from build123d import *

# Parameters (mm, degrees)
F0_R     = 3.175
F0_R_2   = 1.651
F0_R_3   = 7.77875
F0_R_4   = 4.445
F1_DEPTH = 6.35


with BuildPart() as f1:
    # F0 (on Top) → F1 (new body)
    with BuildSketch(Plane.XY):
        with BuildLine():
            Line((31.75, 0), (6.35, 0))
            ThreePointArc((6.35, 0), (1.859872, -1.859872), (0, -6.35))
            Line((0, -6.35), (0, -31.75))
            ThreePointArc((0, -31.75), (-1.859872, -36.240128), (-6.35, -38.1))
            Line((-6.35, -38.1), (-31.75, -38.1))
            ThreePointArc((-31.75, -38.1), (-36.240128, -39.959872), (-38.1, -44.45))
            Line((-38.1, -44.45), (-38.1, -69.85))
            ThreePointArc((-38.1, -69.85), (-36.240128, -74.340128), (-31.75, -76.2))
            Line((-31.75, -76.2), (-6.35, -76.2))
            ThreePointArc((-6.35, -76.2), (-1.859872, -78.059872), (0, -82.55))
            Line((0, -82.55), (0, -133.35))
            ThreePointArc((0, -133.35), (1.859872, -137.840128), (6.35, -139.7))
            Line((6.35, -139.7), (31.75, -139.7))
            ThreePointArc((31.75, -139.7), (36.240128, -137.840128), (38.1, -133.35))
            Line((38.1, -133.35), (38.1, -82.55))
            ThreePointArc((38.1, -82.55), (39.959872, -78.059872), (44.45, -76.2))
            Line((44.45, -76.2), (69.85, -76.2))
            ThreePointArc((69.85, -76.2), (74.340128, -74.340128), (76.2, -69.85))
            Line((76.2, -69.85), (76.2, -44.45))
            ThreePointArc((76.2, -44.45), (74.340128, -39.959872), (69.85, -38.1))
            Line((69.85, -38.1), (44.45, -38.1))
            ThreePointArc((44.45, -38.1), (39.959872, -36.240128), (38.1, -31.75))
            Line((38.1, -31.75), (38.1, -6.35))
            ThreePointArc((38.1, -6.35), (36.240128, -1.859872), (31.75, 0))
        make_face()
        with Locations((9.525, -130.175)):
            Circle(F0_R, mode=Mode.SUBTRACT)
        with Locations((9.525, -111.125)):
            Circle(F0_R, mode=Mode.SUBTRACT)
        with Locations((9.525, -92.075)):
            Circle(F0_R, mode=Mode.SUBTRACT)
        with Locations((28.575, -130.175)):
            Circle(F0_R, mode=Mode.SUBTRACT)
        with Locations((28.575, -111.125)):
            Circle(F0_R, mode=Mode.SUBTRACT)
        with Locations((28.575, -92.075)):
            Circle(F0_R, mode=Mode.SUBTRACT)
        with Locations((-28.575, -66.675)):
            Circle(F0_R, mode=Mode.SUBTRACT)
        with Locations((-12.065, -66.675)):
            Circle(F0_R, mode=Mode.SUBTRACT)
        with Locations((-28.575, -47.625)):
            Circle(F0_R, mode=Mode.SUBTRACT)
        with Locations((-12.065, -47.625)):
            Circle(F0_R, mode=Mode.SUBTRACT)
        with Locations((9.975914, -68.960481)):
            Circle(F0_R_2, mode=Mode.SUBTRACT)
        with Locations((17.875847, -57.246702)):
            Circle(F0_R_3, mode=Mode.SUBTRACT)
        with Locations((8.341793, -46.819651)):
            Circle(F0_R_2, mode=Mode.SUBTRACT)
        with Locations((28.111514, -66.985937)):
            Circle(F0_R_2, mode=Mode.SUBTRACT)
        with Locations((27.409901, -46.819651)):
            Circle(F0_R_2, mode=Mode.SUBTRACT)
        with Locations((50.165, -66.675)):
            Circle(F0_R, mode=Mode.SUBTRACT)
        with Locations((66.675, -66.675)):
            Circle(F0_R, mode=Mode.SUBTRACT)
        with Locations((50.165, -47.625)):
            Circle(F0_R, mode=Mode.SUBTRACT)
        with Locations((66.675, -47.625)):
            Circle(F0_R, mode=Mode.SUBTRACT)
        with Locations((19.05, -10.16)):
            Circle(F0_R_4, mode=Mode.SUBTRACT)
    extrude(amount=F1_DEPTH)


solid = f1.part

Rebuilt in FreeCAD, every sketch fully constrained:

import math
import FreeCAD as App
import Part
import Sketcher
Q = App.Units.Quantity

doc = App.newDocument("Part")
body = doc.addObject("PartDesign::Body", "Body")

sketch1 = body.newObject("Sketcher::SketchObject", "Sketch")
sketch1.AttachmentSupport = (doc.getObject("XY_Plane"), [""])
sketch1.MapMode = "FlatFace"
sketch1.addGeometry(Part.LineSegment(App.Vector(31.75, 0, 0), App.Vector(6.35, 0, 0)), False)
sketch1.addGeometry(Part.ArcOfCircle(Part.Circle(App.Vector(6.35, -6.35, 0), App.Vector(0, 0, 1), 6.35), math.radians(90.000002), math.radians(179.999998)), False)
sketch1.addGeometry(Part.LineSegment(App.Vector(0, -6.35, 0), App.Vector(0, -31.75, 0)), False)
sketch1.addGeometry(Part.ArcOfCircle(Part.Circle(App.Vector(-6.35, -31.75, 0), App.Vector(0, 0, 1), 6.35), math.radians(-89.999998), math.radians(-0.000002)), False)
sketch1.addGeometry(Part.LineSegment(App.Vector(-6.35, -38.1, 0), App.Vector(-31.75, -38.1, 0)), False)
sketch1.addGeometry(Part.ArcOfCircle(Part.Circle(App.Vector(-31.75, -44.45, 0), App.Vector(0, 0, 1), 6.35), math.radians(90.000002), math.radians(179.999998)), False)
sketch1.addGeometry(Part.LineSegment(App.Vector(-38.1, -44.45, 0), App.Vector(-38.1, -69.85, 0)), False)
sketch1.addGeometry(Part.ArcOfCircle(Part.Circle(App.Vector(-31.75, -69.85, 0), App.Vector(0, 0, 1), 6.35), math.radians(-179.999998), math.radians(-90.000002)), False)
sketch1.addGeometry(Part.LineSegment(App.Vector(-31.75, -76.2, 0), App.Vector(-6.35, -76.2, 0)), False)
sketch1.addGeometry(Part.ArcOfCircle(Part.Circle(App.Vector(-6.35, -82.55, 0), App.Vector(0, 0, 1), 6.35), math.radians(0.000002), math.radians(89.999998)), False)
sketch1.addGeometry(Part.LineSegment(App.Vector(0, -82.55, 0), App.Vector(0, -133.35, 0)), False)
sketch1.addGeometry(Part.ArcOfCircle(Part.Circle(App.Vector(6.35, -133.35, 0), App.Vector(0, 0, 1), 6.35), math.radians(-179.999998), math.radians(-90.000002)), False)
sketch1.addGeometry(Part.LineSegment(App.Vector(6.35, -139.7, 0), App.Vector(31.75, -139.7, 0)), False)
sketch1.addGeometry(Part.ArcOfCircle(Part.Circle(App.Vector(31.75, -133.35, 0), App.Vector(0, 0, 1), 6.35), math.radians(-89.999998), math.radians(-0.000002)), False)
sketch1.addGeometry(Part.LineSegment(App.Vector(38.1, -133.35, 0), App.Vector(38.1, -82.55, 0)), False)
sketch1.addGeometry(Part.ArcOfCircle(Part.Circle(App.Vector(44.45, -82.55, 0), App.Vector(0, 0, 1), 6.35), math.radians(90.000002), math.radians(179.999998)), False)
sketch1.addGeometry(Part.LineSegment(App.Vector(44.45, -76.2, 0), App.Vector(69.85, -76.2, 0)), False)
sketch1.addGeometry(Part.ArcOfCircle(Part.Circle(App.Vector(69.85, -69.85, 0), App.Vector(0, 0, 1), 6.35), math.radians(-89.999998), math.radians(-0.000002)), False)
sketch1.addGeometry(Part.LineSegment(App.Vector(76.2, -69.85, 0), App.Vector(76.2, -44.45, 0)), False)
sketch1.addGeometry(Part.ArcOfCircle(Part.Circle(App.Vector(69.85, -44.45, 0), App.Vector(0, 0, 1), 6.35), math.radians(0.000002), math.radians(89.999998)), False)
sketch1.addGeometry(Part.LineSegment(App.Vector(69.85, -38.1, 0), App.Vector(44.45, -38.1, 0)), False)
sketch1.addGeometry(Part.ArcOfCircle(Part.Circle(App.Vector(44.45, -31.75, 0), App.Vector(0, 0, 1), 6.35), math.radians(-179.999998), math.radians(-90.000002)), False)
sketch1.addGeometry(Part.LineSegment(App.Vector(38.1, -31.75, 0), App.Vector(38.1, -6.35, 0)), False)
sketch1.addGeometry(Part.ArcOfCircle(Part.Circle(App.Vector(31.75, -6.35, 0), App.Vector(0, 0, 1), 6.35), math.radians(0.000002), math.radians(89.999998)), False)
sketch1.addGeometry(Part.Circle(App.Vector(9.525, -130.175, 0), App.Vector(0, 0, 1), 3.175), False)
sketch1.addGeometry(Part.Circle(App.Vector(9.525, -111.125, 0), App.Vector(0, 0, 1), 3.175), False)
sketch1.addGeometry(Part.Circle(App.Vector(9.525, -92.075, 0), App.Vector(0, 0, 1), 3.175), False)
sketch1.addGeometry(Part.Circle(App.Vector(28.575, -130.175, 0), App.Vector(0, 0, 1), 3.175), False)
sketch1.addGeometry(Part.Circle(App.Vector(28.575, -111.125, 0), App.Vector(0, 0, 1), 3.175), False)
sketch1.addGeometry(Part.Circle(App.Vector(28.575, -92.075, 0), App.Vector(0, 0, 1), 3.175), False)
sketch1.addGeometry(Part.Circle(App.Vector(-28.575, -66.675, 0), App.Vector(0, 0, 1), 3.175), False)
sketch1.addGeometry(Part.Circle(App.Vector(-12.065, -66.675, 0), App.Vector(0, 0, 1), 3.175), False)
sketch1.addGeometry(Part.Circle(App.Vector(-28.575, -47.625, 0), App.Vector(0, 0, 1), 3.175), False)
sketch1.addGeometry(Part.Circle(App.Vector(-12.065, -47.625, 0), App.Vector(0, 0, 1), 3.175), False)
sketch1.addGeometry(Part.Circle(App.Vector(9.975914, -68.960481, 0), App.Vector(0, 0, 1), 1.651), False)
sketch1.addGeometry(Part.Circle(App.Vector(17.875847, -57.246702, 0), App.Vector(0, 0, 1), 7.77875), False)
sketch1.addGeometry(Part.Circle(App.Vector(8.341793, -46.819651, 0), App.Vector(0, 0, 1), 1.651), False)
sketch1.addGeometry(Part.Circle(App.Vector(19.05, -10.16, 0), App.Vector(0, 0, 1), 4.445), False)
sketch1.addGeometry(Part.Circle(App.Vector(28.111514, -66.985937, 0), App.Vector(0, 0, 1), 1.651), False)
sketch1.addGeometry(Part.Circle(App.Vector(27.409901, -46.819651, 0), App.Vector(0, 0, 1), 1.651), False)
sketch1.addGeometry(Part.Circle(App.Vector(50.165, -66.675, 0), App.Vector(0, 0, 1), 3.175), False)
sketch1.addGeometry(Part.Circle(App.Vector(66.675, -66.675, 0), App.Vector(0, 0, 1), 3.175), False)
sketch1.addGeometry(Part.Circle(App.Vector(50.165, -47.625, 0), App.Vector(0, 0, 1), 3.175), False)
sketch1.addGeometry(Part.Circle(App.Vector(66.675, -47.625, 0), App.Vector(0, 0, 1), 3.175), False)
sketch1.addConstraint(Sketcher.Constraint("Tangent", 0, 2, 1, 1))
sketch1.addConstraint(Sketcher.Constraint("Tangent", 1, 2, 2, 1))
sketch1.addConstraint(Sketcher.Constraint("Tangent", 2, 2, 3, 2))
sketch1.addConstraint(Sketcher.Constraint("Tangent", 3, 1, 4, 1))
sketch1.addConstraint(Sketcher.Constraint("Tangent", 4, 2, 5, 1))
sketch1.addConstraint(Sketcher.Constraint("Tangent", 5, 2, 6, 1))
sketch1.addConstraint(Sketcher.Constraint("Tangent", 6, 2, 7, 1))
sketch1.addConstraint(Sketcher.Constraint("Tangent", 7, 2, 8, 1))
sketch1.addConstraint(Sketcher.Constraint("Tangent", 8, 2, 9, 2))
sketch1.addConstraint(Sketcher.Constraint("Tangent", 9, 1, 10, 1))
sketch1.addConstraint(Sketcher.Constraint("Tangent", 10, 2, 11, 1))
sketch1.addConstraint(Sketcher.Constraint("Tangent", 11, 2, 12, 1))
sketch1.addConstraint(Sketcher.Constraint("Tangent", 12, 2, 13, 1))
sketch1.addConstraint(Sketcher.Constraint("Tangent", 13, 2, 14, 1))
sketch1.addConstraint(Sketcher.Constraint("Tangent", 14, 2, 15, 2))
sketch1.addConstraint(Sketcher.Constraint("Tangent", 15, 1, 16, 1))
sketch1.addConstraint(Sketcher.Constraint("Tangent", 16, 2, 17, 1))
sketch1.addConstraint(Sketcher.Constraint("Tangent", 17, 2, 18, 1))
sketch1.addConstraint(Sketcher.Constraint("Tangent", 18, 2, 19, 1))
sketch1.addConstraint(Sketcher.Constraint("Tangent", 19, 2, 20, 1))
sketch1.addConstraint(Sketcher.Constraint("Tangent", 20, 2, 21, 2))
sketch1.addConstraint(Sketcher.Constraint("Tangent", 21, 1, 22, 1))
sketch1.addConstraint(Sketcher.Constraint("Tangent", 22, 2, 23, 1))
sketch1.addConstraint(Sketcher.Constraint("Tangent", 23, 2, 0, 1))
sketch1.addConstraint(Sketcher.Constraint("Horizontal", 0))
sketch1.addConstraint(Sketcher.Constraint("Vertical", 2))
sketch1.addConstraint(Sketcher.Constraint("Horizontal", 4))
sketch1.addConstraint(Sketcher.Constraint("Vertical", 6))
sketch1.addConstraint(Sketcher.Constraint("Horizontal", 8))
sketch1.addConstraint(Sketcher.Constraint("Vertical", 10))
sketch1.addConstraint(Sketcher.Constraint("Horizontal", 12))
sketch1.addConstraint(Sketcher.Constraint("Vertical", 14))
sketch1.addConstraint(Sketcher.Constraint("Horizontal", 16))
sketch1.addConstraint(Sketcher.Constraint("Vertical", 18))
sketch1.addConstraint(Sketcher.Constraint("Horizontal", 20))
sketch1.addConstraint(Sketcher.Constraint("Vertical", 22))
sketch1.addConstraint(Sketcher.Constraint("Equal", 1, 3))
sketch1.addConstraint(Sketcher.Constraint("Equal", 3, 5))
sketch1.addConstraint(Sketcher.Constraint("Equal", 5, 7))
sketch1.addConstraint(Sketcher.Constraint("Equal", 7, 9))
sketch1.addConstraint(Sketcher.Constraint("Equal", 9, 11))
sketch1.addConstraint(Sketcher.Constraint("Equal", 11, 13))
sketch1.addConstraint(Sketcher.Constraint("Equal", 13, 15))
sketch1.addConstraint(Sketcher.Constraint("Equal", 15, 17))
sketch1.addConstraint(Sketcher.Constraint("Equal", 17, 19))
sketch1.addConstraint(Sketcher.Constraint("Equal", 19, 21))
sketch1.addConstraint(Sketcher.Constraint("Equal", 21, 23))
sketch1.addConstraint(Sketcher.Constraint("Equal", 24, 25))
sketch1.addConstraint(Sketcher.Constraint("Equal", 25, 26))
sketch1.addConstraint(Sketcher.Constraint("Equal", 26, 27))
sketch1.addConstraint(Sketcher.Constraint("Equal", 27, 28))
sketch1.addConstraint(Sketcher.Constraint("Equal", 28, 29))
sketch1.addConstraint(Sketcher.Constraint("Equal", 29, 30))
sketch1.addConstraint(Sketcher.Constraint("Equal", 30, 31))
sketch1.addConstraint(Sketcher.Constraint("Equal", 31, 32))
sketch1.addConstraint(Sketcher.Constraint("Equal", 32, 33))
sketch1.addConstraint(Sketcher.Constraint("Equal", 34, 36))
sketch1.addConstraint(Sketcher.Constraint("Equal", 36, 38))
sketch1.addConstraint(Sketcher.Constraint("Equal", 38, 39))
sketch1.addConstraint(Sketcher.Constraint("Equal", 33, 40))
sketch1.addConstraint(Sketcher.Constraint("Equal", 40, 41))
sketch1.addConstraint(Sketcher.Constraint("Equal", 41, 42))
sketch1.addConstraint(Sketcher.Constraint("Equal", 42, 43))
sketch1.addConstraint(Sketcher.Constraint("PointOnObject", 0, 2, -1))
sketch1.addConstraint(Sketcher.Constraint("PointOnObject", 1, 2, -2))
sketch1.addConstraint(Sketcher.Constraint("PointOnObject", 9, 1, -2))
sketch1.addConstraint(Sketcher.Constraint("Horizontal", 9, 3, 15, 3))
sketch1.addConstraint(Sketcher.Constraint("Horizontal", 5, 3, 19, 3))
sketch1.addConstraint(Sketcher.Constraint("Horizontal", 24, 3, 27, 3))
sketch1.addConstraint(Sketcher.Constraint("Horizontal", 25, 3, 28, 3))
sketch1.addConstraint(Sketcher.Constraint("Horizontal", 26, 3, 29, 3))
sketch1.addConstraint(Sketcher.Constraint("Horizontal", 30, 3, 31, 3))
sketch1.addConstraint(Sketcher.Constraint("Horizontal", 32, 3, 33, 3))
sketch1.addConstraint(Sketcher.Constraint("Horizontal", 36, 3, 39, 3))
sketch1.addConstraint(Sketcher.Constraint("Horizontal", 31, 3, 40, 3))
sketch1.addConstraint(Sketcher.Constraint("Horizontal", 40, 3, 41, 3))
sketch1.addConstraint(Sketcher.Constraint("Horizontal", 33, 3, 42, 3))
sketch1.addConstraint(Sketcher.Constraint("Horizontal", 42, 3, 43, 3))
sketch1.addConstraint(Sketcher.Constraint("Vertical", 15, 3, 21, 3))
sketch1.addConstraint(Sketcher.Constraint("Vertical", 24, 3, 25, 3))
sketch1.addConstraint(Sketcher.Constraint("Vertical", 25, 3, 26, 3))
sketch1.addConstraint(Sketcher.Constraint("Vertical", 27, 3, 28, 3))
sketch1.addConstraint(Sketcher.Constraint("Vertical", 28, 3, 29, 3))
sketch1.addConstraint(Sketcher.Constraint("Vertical", 30, 3, 32, 3))
sketch1.addConstraint(Sketcher.Constraint("Vertical", 31, 3, 33, 3))
sketch1.addConstraint(Sketcher.Constraint("Vertical", 40, 3, 42, 3))
sketch1.addConstraint(Sketcher.Constraint("Vertical", 41, 3, 43, 3))
sketch1.addConstraint(Sketcher.Constraint("Equal", 0, 4))
sketch1.addConstraint(Sketcher.Constraint("Equal", 12, 16))
sketch1.addConstraint(Sketcher.Constraint("Equal", 20, 2))
sketch1.addConstraint(Sketcher.Constraint("Equal", 2, 6))
sketch1.addConstraint(Sketcher.Constraint("Diameter", 24, Q("0.25 in")))
sketch1.addConstraint(Sketcher.Constraint("Diameter", 34, Q("0.13 in")))
sketch1.addConstraint(Sketcher.Constraint("Diameter", 37, Q("0.35 in")))
sketch1.addConstraint(Sketcher.Constraint("DistanceX", 0, 2, 0, 1, Q("1 in")))
sketch1.addConstraint(Sketcher.Constraint("DistanceY", 10, 2, 10, 1, Q("2 in")))
sketch1.addConstraint(Sketcher.Constraint("Radius", 1, Q("0.25 in")))
sketch1.addConstraint(Sketcher.Constraint("DistanceY", 26, 3, 30, 3, Q("1 in")))
sketch1.addConstraint(Sketcher.Constraint("DistanceX", 3, 3, 37, 3, Q("1 in")))
sketch1.addConstraint(Sketcher.Constraint("Diameter", 35, Q("0.6125 in")))
sketch1.addConstraint(Sketcher.Constraint("DistanceY", 37, 3, -1, 1, Q("0.4 in")))
sketch1.addConstraint(Sketcher.Constraint("DistanceY", 24, 3, 26, 3, Q("1.5 in")))
sketch1.addConstraint(Sketcher.Constraint("DistanceX", 30, 3, 26, 3, Q("1.5 in")))
sketch1.addConstraint(Sketcher.Constraint("DistanceY", 24, 3, 25, 3, Q("0.75 in")))
sketch1.addConstraint(Sketcher.Constraint("DistanceX", 24, 3, 27, 3, Q("0.75 in")))
sketch1.addConstraint(Sketcher.Constraint("DistanceX", 30, 3, 31, 3, Q("0.65 in")))
sketch1.addConstraint(Sketcher.Constraint("DistanceY", 30, 3, 32, 3, Q("0.75 in")))
sketch1.addConstraint(Sketcher.Constraint("DistanceX", 40, 3, 41, 3, Q("0.65 in")))
sketch1.addConstraint(Sketcher.Constraint("DistanceX", -1, 1, 24, 3, Q("0.375 in")))
sketch1.addConstraint(Sketcher.Constraint("DistanceY", 24, 3, -1, 1, Q("5.125 in")))
sketch1.addConstraint(Sketcher.Constraint("DistanceX", -1, 1, 40, 3, Q("1.975 in")))
sketch1.addConstraint(Sketcher.Constraint("DistanceX", 34, 3, 38, 3, Q("0.714 in")))
sketch1.addConstraint(Sketcher.Constraint("DistanceX", -1, 1, 39, 3, 27.409901))
sketch1.addConstraint(Sketcher.Constraint("DistanceY", 35, 3, 33, 3, 9.621702))
sketch1.addConstraint(Sketcher.Constraint("DistanceY", 34, 3, -1, 1, 68.960481))
sketch1.addConstraint(Sketcher.Constraint("DistanceY", 36, 3, -1, 1, 46.819651))
sketch1.addConstraint(Sketcher.Constraint("DistanceX", 36, 3, 34, 3, 1.634121))
sketch1.addConstraint(Sketcher.Constraint("DistanceX", 36, 3, 39, 3, 19.068108))
sketch1.addConstraint(Sketcher.Constraint("DistanceX", -1, 1, 35, 3, 17.875847))
sketch1.addConstraint(Sketcher.Constraint("DistanceY", 38, 3, -1, 1, 66.985937))
pad1 = body.newObject("PartDesign::Pad", "Pad")
pad1.Profile = sketch1
pad1.Length = Q("0.25 in")

doc.recompute()
